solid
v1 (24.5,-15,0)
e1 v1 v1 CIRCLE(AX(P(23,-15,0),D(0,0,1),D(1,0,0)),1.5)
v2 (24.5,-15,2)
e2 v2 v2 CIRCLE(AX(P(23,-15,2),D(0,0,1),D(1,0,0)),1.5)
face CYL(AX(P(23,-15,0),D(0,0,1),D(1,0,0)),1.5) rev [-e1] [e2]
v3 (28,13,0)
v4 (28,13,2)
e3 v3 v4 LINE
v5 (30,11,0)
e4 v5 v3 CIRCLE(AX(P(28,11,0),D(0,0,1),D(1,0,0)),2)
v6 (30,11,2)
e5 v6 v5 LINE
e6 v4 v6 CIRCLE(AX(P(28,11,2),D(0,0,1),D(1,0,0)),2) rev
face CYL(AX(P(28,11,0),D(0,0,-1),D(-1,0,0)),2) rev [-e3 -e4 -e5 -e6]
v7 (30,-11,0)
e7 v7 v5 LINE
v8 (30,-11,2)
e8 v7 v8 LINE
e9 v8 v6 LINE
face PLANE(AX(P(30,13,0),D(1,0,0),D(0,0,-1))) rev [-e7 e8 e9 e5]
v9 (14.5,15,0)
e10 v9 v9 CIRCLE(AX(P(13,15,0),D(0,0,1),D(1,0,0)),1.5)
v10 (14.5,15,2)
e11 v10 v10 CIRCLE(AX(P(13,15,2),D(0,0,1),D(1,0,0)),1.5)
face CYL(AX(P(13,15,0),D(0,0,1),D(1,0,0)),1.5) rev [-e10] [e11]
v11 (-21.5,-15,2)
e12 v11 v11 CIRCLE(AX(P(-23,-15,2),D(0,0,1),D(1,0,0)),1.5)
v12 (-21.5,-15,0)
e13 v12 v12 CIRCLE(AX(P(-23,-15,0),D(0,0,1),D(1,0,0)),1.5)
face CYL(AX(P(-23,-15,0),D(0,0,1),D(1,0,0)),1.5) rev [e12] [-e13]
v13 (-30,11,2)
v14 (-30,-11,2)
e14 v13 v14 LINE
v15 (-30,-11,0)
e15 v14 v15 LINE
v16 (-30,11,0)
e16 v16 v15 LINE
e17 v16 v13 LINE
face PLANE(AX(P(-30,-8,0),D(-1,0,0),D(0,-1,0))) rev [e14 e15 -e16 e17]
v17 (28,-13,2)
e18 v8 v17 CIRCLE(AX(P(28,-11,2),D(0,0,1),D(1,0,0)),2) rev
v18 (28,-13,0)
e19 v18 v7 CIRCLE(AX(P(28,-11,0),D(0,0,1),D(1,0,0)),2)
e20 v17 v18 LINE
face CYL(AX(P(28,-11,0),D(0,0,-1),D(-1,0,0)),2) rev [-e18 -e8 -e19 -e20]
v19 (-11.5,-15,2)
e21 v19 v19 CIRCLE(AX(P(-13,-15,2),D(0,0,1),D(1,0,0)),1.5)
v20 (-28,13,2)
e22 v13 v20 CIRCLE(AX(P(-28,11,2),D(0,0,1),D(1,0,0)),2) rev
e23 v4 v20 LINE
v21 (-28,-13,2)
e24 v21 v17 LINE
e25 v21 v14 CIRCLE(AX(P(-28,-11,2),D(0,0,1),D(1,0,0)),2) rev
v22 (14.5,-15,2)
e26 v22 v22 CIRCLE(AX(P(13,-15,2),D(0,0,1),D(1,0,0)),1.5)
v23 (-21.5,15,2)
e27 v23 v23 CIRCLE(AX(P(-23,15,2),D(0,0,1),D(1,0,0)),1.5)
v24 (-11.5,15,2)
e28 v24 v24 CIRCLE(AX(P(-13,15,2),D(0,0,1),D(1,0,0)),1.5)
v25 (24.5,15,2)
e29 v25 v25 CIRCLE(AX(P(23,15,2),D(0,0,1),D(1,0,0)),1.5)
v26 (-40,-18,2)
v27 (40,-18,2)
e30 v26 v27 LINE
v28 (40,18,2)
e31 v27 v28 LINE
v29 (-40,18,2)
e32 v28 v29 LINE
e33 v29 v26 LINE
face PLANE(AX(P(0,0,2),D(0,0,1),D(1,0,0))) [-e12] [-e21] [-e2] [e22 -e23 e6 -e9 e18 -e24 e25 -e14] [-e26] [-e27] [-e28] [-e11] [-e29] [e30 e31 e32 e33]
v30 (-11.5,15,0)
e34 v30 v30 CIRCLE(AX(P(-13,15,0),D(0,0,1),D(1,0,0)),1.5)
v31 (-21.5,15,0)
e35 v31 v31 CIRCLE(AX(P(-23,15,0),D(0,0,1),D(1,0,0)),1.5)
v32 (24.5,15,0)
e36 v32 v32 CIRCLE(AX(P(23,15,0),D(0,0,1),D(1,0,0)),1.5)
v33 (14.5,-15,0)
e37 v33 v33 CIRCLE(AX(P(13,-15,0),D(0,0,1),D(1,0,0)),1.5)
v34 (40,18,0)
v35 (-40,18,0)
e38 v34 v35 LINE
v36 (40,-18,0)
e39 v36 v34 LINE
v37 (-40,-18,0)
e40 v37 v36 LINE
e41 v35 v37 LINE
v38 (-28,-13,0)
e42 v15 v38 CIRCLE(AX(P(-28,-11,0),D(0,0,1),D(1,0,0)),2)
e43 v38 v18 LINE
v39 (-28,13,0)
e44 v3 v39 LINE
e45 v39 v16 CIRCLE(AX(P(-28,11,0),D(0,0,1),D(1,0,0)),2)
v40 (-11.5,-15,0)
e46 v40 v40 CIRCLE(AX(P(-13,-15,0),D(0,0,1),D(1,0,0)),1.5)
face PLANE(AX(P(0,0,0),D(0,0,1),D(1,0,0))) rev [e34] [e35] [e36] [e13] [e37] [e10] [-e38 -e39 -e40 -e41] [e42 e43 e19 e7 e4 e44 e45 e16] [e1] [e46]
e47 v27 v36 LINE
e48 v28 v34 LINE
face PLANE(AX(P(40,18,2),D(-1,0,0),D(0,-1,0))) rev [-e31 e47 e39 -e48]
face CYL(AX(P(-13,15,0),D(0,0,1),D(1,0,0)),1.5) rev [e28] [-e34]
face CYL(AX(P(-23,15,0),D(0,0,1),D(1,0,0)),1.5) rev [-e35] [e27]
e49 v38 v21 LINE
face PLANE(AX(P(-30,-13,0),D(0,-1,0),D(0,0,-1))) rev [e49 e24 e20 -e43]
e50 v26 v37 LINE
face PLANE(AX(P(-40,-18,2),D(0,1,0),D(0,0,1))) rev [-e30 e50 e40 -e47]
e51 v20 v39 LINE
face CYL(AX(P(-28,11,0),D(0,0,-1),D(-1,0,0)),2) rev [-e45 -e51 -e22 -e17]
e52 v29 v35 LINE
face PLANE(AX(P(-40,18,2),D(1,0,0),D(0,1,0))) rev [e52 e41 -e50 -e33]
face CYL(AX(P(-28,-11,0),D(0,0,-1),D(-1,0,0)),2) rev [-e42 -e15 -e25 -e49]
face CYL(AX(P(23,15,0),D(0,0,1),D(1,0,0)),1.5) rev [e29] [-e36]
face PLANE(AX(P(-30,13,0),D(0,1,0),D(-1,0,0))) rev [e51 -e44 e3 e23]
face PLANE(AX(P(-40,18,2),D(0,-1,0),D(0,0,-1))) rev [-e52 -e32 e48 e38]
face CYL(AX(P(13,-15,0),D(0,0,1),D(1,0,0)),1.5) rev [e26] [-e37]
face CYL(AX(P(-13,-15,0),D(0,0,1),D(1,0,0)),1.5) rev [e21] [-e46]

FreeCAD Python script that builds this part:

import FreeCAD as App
import Part
import Sketcher

V = App.Vector


def edges_at(feature, points):
    """Names of the edges that pass closest to the given points."""
    edges = feature.Shape.Edges
    near = lambda p: min(range(len(edges)), key=lambda i: edges[i].distToShape(Part.Vertex(*p))[0])
    return sorted({f"Edge{near(p) + 1}" for p in points})


def add_polygon(sketch, points):
    """Adds a closed chain of lines whose ends are joined by coincident constraints."""
    first, n = sketch.GeometryCount, len(points)
    for a, b in zip(points, points[1:] + points[:1]):
        sketch.addGeometry(Part.LineSegment(App.Vector(*a, 0), App.Vector(*b, 0)), False)
    for i in range(n):
        sketch.addConstraint(Sketcher.Constraint("Coincident", first + i, 2, first + (i + 1) % n, 1))

doc = App.newDocument("Part")
params = doc.addObject("Spreadsheet::Sheet", "Params")
for row, (alias, value) in enumerate([
    ("sketch1_width", "80 mm"),
    ("sketch1_height", "36 mm"),
    ("pad1_length", "2 mm"),
    ("sketch2_width", "60 mm"),
    ("sketch2_height", "26 mm"),
    ("pocket1_length", "2 mm"),
    ("fillet_radius", "2 mm"),
    ("sketch3_diameter", "3 mm"),
], start=1):
    params.set(f"A{row}", alias)
    params.set(f"B{row}", "=" + value)
    params.setAlias(f"B{row}", alias)

body = doc.addObject("PartDesign::Body", "Body")

sketch1 = body.newObject("Sketcher::SketchObject", "Sketch")
sketch1.AttachmentSupport = (doc.getObject("XY_Plane"), [""])
sketch1.MapMode = "FlatFace"
add_polygon(sketch1, [(-40, 18), (-40, -18), (40, -18), (40, 18)])
sketch1.addConstraint(Sketcher.Constraint("Vertical", 0))
sketch1.addConstraint(Sketcher.Constraint("Horizontal", 1))
sketch1.addConstraint(Sketcher.Constraint("Vertical", 2))
sketch1.addConstraint(Sketcher.Constraint("Horizontal", 3))
sketch1.addConstraint(Sketcher.Constraint("Symmetric", 0, 2, 2, 2, -1, 1))
sketch1.addConstraint(Sketcher.Constraint("DistanceX", 1, 1, 1, 2, 80.0))
sketch1.addConstraint(Sketcher.Constraint("DistanceY", 0, 2, 0, 1, 36.0))
sketch1.setExpression("Constraints[9]", "Params.sketch1_width")
sketch1.setExpression("Constraints[10]", "Params.sketch1_height")
pad1 = body.newObject("PartDesign::Pad", "Pad")
pad1.Profile = sketch1
pad1.setExpression("Length", "Params.pad1_length")

sketch2 = body.newObject("Sketcher::SketchObject", "Sketch001")
sketch2.AttachmentSupport = (doc.getObject("XY_Plane"), [""])
sketch2.MapMode = "FlatFace"
sketch2.AttachmentOffset = App.Placement(V(0, 0, 2), App.Rotation())
add_polygon(sketch2, [(-30, -13), (30, -13), (30, 13), (-30, 13)])
sketch2.addConstraint(Sketcher.Constraint("Horizontal", 0))
sketch2.addConstraint(Sketcher.Constraint("Vertical", 1))
sketch2.addConstraint(Sketcher.Constraint("Horizontal", 2))
sketch2.addConstraint(Sketcher.Constraint("Vertical", 3))
sketch2.addConstraint(Sketcher.Constraint("Symmetric", 0, 2, 2, 2, -1, 1))
sketch2.addConstraint(Sketcher.Constraint("DistanceX", 0, 1, 0, 2, 60.0))
sketch2.addConstraint(Sketcher.Constraint("DistanceY", 1, 1, 1, 2, 26.0))
sketch2.setExpression("Constraints[9]", "Params.sketch2_width")
sketch2.setExpression("Constraints[10]", "Params.sketch2_height")
pocket1 = body.newObject("PartDesign::Pocket", "Pocket")
pocket1.Profile = sketch2
pocket1.setExpression("Length", "Params.pocket1_length")
doc.recompute()

fillet = body.newObject("PartDesign::Fillet", "Fillet")
fillet.Base = (pocket1, edges_at(pocket1, [
    (30, -13, 1),
    (-30, -13, 1),
    (-30, 13, 1),
    (30, 13, 1),
]))
fillet.setExpression("Radius", "Params.fillet_radius")

sketch3 = body.newObject("Sketcher::SketchObject", "Sketch002")
sketch3.AttachmentSupport = (doc.getObject("XY_Plane"), [""])
sketch3.MapMode = "FlatFace"
sketch3.AttachmentOffset = App.Placement(V(0, 0, 2), App.Rotation())
sketch3.addGeometry(Part.Circle(V(23, -15, 0), V(0, 0, 1), 1.5), False)
sketch3.addGeometry(Part.Circle(V(13, -15, 0), V(0, 0, 1), 1.5), False)
sketch3.addGeometry(Part.Circle(V(-13, -15, 0), V(0, 0, 1), 1.5), False)
sketch3.addGeometry(Part.Circle(V(-23, -15, 0), V(0, 0, 1), 1.5), False)
sketch3.addGeometry(Part.Circle(V(23, 15, 0), V(0, 0, 1), 1.5), False)
sketch3.addGeometry(Part.Circle(V(13, 15, 0), V(0, 0, 1), 1.5), False)
sketch3.addGeometry(Part.Circle(V(-13, 15, 0), V(0, 0, 1), 1.5), False)
sketch3.addGeometry(Part.Circle(V(-23, 15, 0), V(0, 0, 1), 1.5), False)
sketch3.addConstraint(Sketcher.Constraint("Equal", 0, 1))
sketch3.addConstraint(Sketcher.Constraint("Equal", 1, 2))
sketch3.addConstraint(Sketcher.Constraint("Equal", 2, 3))
sketch3.addConstraint(Sketcher.Constraint("Equal", 3, 4))
sketch3.addConstraint(Sketcher.Constraint("Equal", 4, 5))
sketch3.addConstraint(Sketcher.Constraint("Equal", 5, 6))
sketch3.addConstraint(Sketcher.Constraint("Equal", 6, 7))
sketch3.addConstraint(Sketcher.Constraint("Symmetric", 3, 3, 4, 3, -1, 1))
sketch3.addConstraint(Sketcher.Constraint("Symmetric", 2, 3, 5, 3, -1, 1))
sketch3.addConstraint(Sketcher.Constraint("Symmetric", 1, 3, 6, 3, -1, 1))
sketch3.addConstraint(Sketcher.Constraint("Symmetric", 0, 3, 7, 3, -1, 1))
sketch3.addConstraint(Sketcher.Constraint("Symmetric", 1, 3, 2, 3, -2))
sketch3.addConstraint(Sketcher.Constraint("Symmetric", 0, 3, 3, 3, -2))
sketch3.addConstraint(Sketcher.Constraint("Horizontal", 0, 3, 1, 3))
sketch3.addConstraint(Sketcher.Constraint("Diameter", 0, 3.0))
sketch3.addConstraint(Sketcher.Constraint("DistanceX", -1, 1, 0, 3, 23.0))
sketch3.addConstraint(Sketcher.Constraint("DistanceY", 0, 3, -1, 1, 15.0))
sketch3.addConstraint(Sketcher.Constraint("DistanceX", -1, 1, 1, 3, 13.0))
sketch3.setExpression("Constraints[14]", "Params.sketch3_diameter")
pocket2 = body.newObject("PartDesign::Pocket", "Pocket001")
pocket2.Profile = sketch3
pocket2.Type = "ThroughAll"

doc.recompute()
